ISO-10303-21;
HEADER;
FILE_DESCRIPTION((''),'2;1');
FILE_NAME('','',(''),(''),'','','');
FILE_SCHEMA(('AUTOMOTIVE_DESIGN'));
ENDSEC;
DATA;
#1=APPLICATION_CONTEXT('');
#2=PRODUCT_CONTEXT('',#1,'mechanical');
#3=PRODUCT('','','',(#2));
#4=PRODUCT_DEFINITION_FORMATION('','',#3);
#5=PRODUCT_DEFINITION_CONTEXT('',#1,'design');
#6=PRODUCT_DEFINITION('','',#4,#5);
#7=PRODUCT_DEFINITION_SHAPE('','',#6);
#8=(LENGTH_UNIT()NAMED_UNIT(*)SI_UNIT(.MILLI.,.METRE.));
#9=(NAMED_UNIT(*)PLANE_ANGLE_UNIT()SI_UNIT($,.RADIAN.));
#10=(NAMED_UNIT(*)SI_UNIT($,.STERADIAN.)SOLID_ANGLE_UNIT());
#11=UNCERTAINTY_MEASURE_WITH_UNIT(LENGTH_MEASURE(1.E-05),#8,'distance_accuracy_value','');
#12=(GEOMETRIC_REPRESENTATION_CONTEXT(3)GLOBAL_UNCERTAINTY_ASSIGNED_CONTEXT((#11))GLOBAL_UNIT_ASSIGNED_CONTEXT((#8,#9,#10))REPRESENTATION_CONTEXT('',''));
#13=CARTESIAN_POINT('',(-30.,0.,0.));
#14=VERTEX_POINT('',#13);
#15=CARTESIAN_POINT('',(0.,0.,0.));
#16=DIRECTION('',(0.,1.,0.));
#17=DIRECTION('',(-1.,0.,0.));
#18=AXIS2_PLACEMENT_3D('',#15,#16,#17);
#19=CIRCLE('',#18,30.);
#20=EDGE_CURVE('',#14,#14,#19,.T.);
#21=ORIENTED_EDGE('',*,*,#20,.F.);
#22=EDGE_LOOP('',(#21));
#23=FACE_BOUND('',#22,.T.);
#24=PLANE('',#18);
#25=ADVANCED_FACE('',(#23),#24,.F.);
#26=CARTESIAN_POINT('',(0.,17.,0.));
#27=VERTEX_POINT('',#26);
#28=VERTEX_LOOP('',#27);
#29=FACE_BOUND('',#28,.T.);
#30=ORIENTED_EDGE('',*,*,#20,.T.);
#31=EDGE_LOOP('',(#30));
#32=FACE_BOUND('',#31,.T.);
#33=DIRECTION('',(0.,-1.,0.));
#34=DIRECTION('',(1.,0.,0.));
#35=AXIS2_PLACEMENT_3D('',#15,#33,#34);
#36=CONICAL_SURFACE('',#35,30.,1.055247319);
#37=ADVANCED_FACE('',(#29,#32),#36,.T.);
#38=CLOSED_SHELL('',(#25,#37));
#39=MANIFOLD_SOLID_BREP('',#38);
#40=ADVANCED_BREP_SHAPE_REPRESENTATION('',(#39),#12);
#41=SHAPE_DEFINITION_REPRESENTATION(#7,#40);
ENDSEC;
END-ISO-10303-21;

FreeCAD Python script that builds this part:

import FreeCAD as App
import Part
import Sketcher
from FreeCAD import Vector
Q = App.Units.Quantity


def add_polygon(sketch, points):
    """Adds a closed chain of lines whose ends are joined by coincident constraints."""
    first, n = sketch.GeometryCount, len(points)
    for a, b in zip(points, points[1:] + points[:1]):
        sketch.addGeometry(Part.LineSegment(App.Vector(*a, 0), App.Vector(*b, 0)), False)
    for i in range(n):
        sketch.addConstraint(Sketcher.Constraint("Coincident", first + i, 2, first + (i + 1) % n, 1))

doc = App.newDocument("Part")
body = doc.addObject("PartDesign::Body", "Body")

sketch1 = body.newObject("Sketcher::SketchObject", "Sketch")
sketch1.AttachmentSupport = (doc.getObject("XY_Plane"), [""])
sketch1.MapMode = "FlatFace"
add_polygon(sketch1, [(0, 0), (30, 0), (0, 17)])
sketch1.addConstraint([
    Sketcher.Constraint("Horizontal", 0),
    Sketcher.Constraint("Vertical", 2),
    Sketcher.Constraint("Coincident", 2, 2, -1, 1),
    Sketcher.Constraint("DistanceX", 0, 1, 0, 2, Q("30 mm")),
    Sketcher.Constraint("DistanceY", 2, 2, 2, 1, Q("17 mm")),
])
revolution = body.newObject("PartDesign::Revolution", "Revolution")
revolution.Profile = sketch1
revolution.ReferenceAxis = (sketch1, ["V_Axis"])
revolution.Angle = 360

doc.recompute()
